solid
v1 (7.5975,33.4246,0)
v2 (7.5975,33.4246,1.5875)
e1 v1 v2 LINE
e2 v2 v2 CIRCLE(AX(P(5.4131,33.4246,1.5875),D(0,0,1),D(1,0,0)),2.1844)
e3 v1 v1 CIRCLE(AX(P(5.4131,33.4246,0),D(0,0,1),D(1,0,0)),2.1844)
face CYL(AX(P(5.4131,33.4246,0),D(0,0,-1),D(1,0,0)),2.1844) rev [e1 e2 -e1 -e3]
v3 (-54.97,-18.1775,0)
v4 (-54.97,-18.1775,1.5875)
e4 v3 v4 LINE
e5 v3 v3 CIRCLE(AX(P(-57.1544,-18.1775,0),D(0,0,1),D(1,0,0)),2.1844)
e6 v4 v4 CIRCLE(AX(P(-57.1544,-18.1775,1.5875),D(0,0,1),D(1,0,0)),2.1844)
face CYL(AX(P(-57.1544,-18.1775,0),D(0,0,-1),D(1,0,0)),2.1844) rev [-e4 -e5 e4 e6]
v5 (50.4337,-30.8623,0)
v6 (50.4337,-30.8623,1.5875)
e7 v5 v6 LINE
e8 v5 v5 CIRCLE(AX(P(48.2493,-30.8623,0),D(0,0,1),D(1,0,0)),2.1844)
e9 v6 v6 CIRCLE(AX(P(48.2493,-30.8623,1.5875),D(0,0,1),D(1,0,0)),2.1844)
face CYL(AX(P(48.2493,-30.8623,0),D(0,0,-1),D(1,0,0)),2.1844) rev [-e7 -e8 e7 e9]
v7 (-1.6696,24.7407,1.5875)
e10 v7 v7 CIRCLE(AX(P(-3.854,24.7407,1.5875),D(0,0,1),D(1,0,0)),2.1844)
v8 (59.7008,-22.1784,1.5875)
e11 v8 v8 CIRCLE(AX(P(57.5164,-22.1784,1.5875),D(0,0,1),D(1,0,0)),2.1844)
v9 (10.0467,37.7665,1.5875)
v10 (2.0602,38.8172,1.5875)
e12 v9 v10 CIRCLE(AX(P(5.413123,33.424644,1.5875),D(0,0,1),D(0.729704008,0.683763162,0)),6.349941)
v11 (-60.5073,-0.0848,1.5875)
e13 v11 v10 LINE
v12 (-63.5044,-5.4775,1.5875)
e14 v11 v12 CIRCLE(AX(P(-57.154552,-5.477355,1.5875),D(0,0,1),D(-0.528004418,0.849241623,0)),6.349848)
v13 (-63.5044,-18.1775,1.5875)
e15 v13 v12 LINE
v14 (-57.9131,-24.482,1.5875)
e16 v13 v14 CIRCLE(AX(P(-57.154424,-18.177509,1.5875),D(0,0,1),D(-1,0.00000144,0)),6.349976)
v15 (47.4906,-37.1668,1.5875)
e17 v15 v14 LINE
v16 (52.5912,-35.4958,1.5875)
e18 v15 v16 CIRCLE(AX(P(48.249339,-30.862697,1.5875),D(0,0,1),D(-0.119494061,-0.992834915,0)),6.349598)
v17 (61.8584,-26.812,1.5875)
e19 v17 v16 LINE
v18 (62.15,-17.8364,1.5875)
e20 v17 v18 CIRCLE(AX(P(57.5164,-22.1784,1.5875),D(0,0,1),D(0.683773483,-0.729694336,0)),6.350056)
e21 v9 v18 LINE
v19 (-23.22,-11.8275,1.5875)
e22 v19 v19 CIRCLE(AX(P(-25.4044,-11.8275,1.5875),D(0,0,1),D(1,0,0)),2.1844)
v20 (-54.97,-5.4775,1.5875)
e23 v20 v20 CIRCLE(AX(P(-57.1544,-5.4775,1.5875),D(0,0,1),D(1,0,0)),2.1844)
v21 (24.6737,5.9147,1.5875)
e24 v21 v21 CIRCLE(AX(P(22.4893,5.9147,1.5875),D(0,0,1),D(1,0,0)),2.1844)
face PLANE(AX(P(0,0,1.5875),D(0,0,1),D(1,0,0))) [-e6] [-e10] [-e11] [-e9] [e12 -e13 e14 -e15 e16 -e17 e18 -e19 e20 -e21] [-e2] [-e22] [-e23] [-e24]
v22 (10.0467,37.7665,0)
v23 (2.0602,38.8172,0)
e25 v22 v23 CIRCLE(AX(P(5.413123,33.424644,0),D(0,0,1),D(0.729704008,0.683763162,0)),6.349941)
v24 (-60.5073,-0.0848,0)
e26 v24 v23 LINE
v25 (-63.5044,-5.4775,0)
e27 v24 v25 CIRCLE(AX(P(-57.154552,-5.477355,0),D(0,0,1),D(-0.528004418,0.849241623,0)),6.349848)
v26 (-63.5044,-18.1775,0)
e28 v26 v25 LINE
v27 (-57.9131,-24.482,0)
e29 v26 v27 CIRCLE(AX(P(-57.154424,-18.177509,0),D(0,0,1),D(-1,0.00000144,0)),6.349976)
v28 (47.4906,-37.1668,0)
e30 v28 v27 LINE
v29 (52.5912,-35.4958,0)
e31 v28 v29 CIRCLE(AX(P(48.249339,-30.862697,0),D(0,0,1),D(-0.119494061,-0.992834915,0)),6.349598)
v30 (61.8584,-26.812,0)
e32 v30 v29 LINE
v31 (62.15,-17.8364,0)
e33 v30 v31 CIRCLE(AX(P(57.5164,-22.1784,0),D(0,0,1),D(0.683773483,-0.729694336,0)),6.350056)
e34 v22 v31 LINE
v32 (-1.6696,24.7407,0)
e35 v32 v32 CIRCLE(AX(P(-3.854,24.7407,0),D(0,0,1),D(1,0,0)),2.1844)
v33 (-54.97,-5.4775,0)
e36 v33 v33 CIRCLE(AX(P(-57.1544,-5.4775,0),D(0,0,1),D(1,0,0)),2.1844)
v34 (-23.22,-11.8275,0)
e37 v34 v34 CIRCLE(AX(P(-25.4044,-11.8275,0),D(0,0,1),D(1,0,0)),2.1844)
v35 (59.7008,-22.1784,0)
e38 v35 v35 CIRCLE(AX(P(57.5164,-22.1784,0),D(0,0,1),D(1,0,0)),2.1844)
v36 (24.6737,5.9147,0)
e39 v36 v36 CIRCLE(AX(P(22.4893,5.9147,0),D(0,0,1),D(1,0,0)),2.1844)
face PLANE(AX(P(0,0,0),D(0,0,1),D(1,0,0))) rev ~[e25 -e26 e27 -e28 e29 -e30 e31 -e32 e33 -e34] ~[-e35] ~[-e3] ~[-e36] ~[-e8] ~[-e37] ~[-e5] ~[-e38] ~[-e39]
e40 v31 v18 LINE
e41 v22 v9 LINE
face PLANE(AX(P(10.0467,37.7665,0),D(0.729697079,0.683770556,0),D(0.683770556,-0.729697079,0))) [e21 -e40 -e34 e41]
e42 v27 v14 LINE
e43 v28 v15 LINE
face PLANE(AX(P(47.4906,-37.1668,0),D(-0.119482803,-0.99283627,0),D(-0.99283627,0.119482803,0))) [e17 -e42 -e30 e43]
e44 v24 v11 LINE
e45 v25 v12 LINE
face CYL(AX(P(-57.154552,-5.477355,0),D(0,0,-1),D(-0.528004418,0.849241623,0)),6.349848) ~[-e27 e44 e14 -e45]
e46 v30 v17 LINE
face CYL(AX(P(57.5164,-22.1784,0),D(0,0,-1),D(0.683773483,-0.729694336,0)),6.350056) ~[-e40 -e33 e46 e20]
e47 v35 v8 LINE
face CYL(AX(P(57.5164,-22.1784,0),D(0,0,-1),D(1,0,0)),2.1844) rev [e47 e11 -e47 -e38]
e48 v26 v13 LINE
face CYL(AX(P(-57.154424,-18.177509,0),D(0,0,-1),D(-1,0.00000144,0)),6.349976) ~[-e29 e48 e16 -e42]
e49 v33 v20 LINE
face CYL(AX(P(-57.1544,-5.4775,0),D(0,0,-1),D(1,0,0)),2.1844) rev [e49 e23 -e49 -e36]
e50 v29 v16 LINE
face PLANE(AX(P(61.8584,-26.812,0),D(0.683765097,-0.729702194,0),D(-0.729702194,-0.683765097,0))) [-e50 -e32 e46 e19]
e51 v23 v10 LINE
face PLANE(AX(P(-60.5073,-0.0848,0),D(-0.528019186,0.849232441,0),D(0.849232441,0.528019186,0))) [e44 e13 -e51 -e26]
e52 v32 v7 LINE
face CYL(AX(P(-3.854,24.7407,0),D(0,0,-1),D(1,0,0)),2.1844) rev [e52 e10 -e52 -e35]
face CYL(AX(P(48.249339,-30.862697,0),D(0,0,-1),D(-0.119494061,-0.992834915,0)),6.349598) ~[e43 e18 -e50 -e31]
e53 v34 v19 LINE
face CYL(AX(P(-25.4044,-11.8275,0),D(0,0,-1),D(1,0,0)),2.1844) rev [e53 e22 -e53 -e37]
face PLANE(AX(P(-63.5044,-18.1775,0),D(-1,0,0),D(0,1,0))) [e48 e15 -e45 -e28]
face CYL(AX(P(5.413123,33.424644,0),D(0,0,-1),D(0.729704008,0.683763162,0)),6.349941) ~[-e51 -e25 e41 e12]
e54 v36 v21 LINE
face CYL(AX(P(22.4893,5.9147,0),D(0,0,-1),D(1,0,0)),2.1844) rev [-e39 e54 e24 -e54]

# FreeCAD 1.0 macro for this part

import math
import FreeCAD as App
import Part
import Sketcher

V = App.Vector
Q = App.Units.Quantity

doc = App.newDocument("Part")
body = doc.addObject("PartDesign::Body", "Body")

# Sketch on XY plane
sketch1 = doc.addObject("Sketcher::SketchObject", "Sketch")
body.addObject(sketch1)
sketch1.AttachmentSupport = (doc.XY_Plane, [""])
sketch1.MapMode = "FlatFace"
sketch1.addGeometry(Part.LineSegment(V(2.1, 38.8, 0), V(-60.5, -0.1, 0)), False)
sketch1.addGeometry(Part.ArcOfCircle(Part.Circle(V(-57.2, -5.5, 0), V(0, 0, 1), 6.4), math.radians(122), math.radians(180)), False)
sketch1.addGeometry(Part.LineSegment(V(-63.5, -5.5, 0), V(-63.5, -18.2, 0)), False)
sketch1.addGeometry(Part.ArcOfCircle(Part.Circle(V(-57.2, -18.2, 0), V(0, 0, 1), 6.3), math.radians(180), math.radians(263)), False)
sketch1.addGeometry(Part.LineSegment(V(-57.9, -24.5, 0), V(47.5, -37.2, 0)), False)
sketch1.addGeometry(Part.ArcOfCircle(Part.Circle(V(48.2, -30.9, 0), V(0, 0, 1), 6.3), math.radians(-97), math.radians(-47)), False)
sketch1.addGeometry(Part.LineSegment(V(52.6, -35.5, 0), V(61.9, -26.8, 0)), False)
sketch1.addGeometry(Part.ArcOfCircle(Part.Circle(V(57.5, -22.2, 0), V(0, 0, 1), 6.4), math.radians(-47), math.radians(43)), False)
sketch1.addGeometry(Part.LineSegment(V(62.1, -17.8, 0), V(10, 37.8, 0)), False)
sketch1.addGeometry(Part.ArcOfCircle(Part.Circle(V(5.4, 33.4, 0), V(0, 0, 1), 6.3), math.radians(43), math.radians(122)), False)
sketch1.addGeometry(Part.Circle(V(-57.2, -18.2, 0), V(0, 0, 1), 2.2), False)
sketch1.addGeometry(Part.Circle(V(-57.2, -5.5, 0), V(0, 0, 1), 2.2), False)
sketch1.addGeometry(Part.Circle(V(-25.4, -11.8, 0), V(0, 0, 1), 2.2), False)
sketch1.addGeometry(Part.Circle(V(48.2, -30.9, 0), V(0, 0, 1), 2.2), False)
sketch1.addGeometry(Part.Circle(V(57.5, -22.2, 0), V(0, 0, 1), 2.2), False)
sketch1.addGeometry(Part.Circle(V(-3.9, 24.7, 0), V(0, 0, 1), 2.2), False)
sketch1.addGeometry(Part.Circle(V(22.5, 5.9, 0), V(0, 0, 1), 2.2), False)
sketch1.addGeometry(Part.Circle(V(5.4, 33.4, 0), V(0, 0, 1), 2.2), False)
sketch1.addConstraint(Sketcher.Constraint("Tangent", 0, 2, 1, 1))
sketch1.addConstraint(Sketcher.Constraint("Tangent", 1, 2, 2, 1))
sketch1.addConstraint(Sketcher.Constraint("Tangent", 2, 2, 3, 1))
sketch1.addConstraint(Sketcher.Constraint("Tangent", 3, 2, 4, 1))
sketch1.addConstraint(Sketcher.Constraint("Tangent", 4, 2, 5, 1))
sketch1.addConstraint(Sketcher.Constraint("Tangent", 5, 2, 6, 1))
sketch1.addConstraint(Sketcher.Constraint("Tangent", 6, 2, 7, 1))
sketch1.addConstraint(Sketcher.Constraint("Tangent", 7, 2, 8, 1))
sketch1.addConstraint(Sketcher.Constraint("Tangent", 8, 2, 9, 1))
sketch1.addConstraint(Sketcher.Constraint("Tangent", 9, 2, 0, 1))
sketch1.addConstraint(Sketcher.Constraint("Vertical", 2))
sketch1.addConstraint(Sketcher.Constraint("Coincident", 10, 3, 3, 3))
sketch1.addConstraint(Sketcher.Constraint("Coincident", 11, 3, 1, 3))
sketch1.addConstraint(Sketcher.Constraint("Coincident", 13, 3, 5, 3))
sketch1.addConstraint(Sketcher.Constraint("Coincident", 14, 3, 7, 3))
sketch1.addConstraint(Sketcher.Constraint("Coincident", 17, 3, 9, 3))
sketch1.addConstraint(Sketcher.Constraint("Equal", 1, 3))
sketch1.addConstraint(Sketcher.Constraint("Equal", 3, 5))
sketch1.addConstraint(Sketcher.Constraint("Equal", 5, 7))
sketch1.addConstraint(Sketcher.Constraint("Equal", 7, 9))
sketch1.addConstraint(Sketcher.Constraint("Equal", 10, 11))
sketch1.addConstraint(Sketcher.Constraint("Equal", 11, 12))
sketch1.addConstraint(Sketcher.Constraint("Equal", 12, 13))
sketch1.addConstraint(Sketcher.Constraint("Equal", 13, 14))
sketch1.addConstraint(Sketcher.Constraint("Equal", 14, 15))
sketch1.addConstraint(Sketcher.Constraint("Equal", 15, 16))
sketch1.addConstraint(Sketcher.Constraint("Equal", 16, 17))
sketch1.addConstraint(Sketcher.Constraint("Perpendicular", 6, 8))
sketch1.addConstraint(Sketcher.Constraint("Radius", 1, Q("0.25 in")))
sketch1.addConstraint(Sketcher.Constraint("Diameter", 10, Q("0.172 in")))
sketch1.addConstraint(Sketcher.Constraint("DistanceY", 2, 2, 2, 1, Q("0.5 in")))
sketch1.addConstraint(Sketcher.Constraint("Distance", 6, Q("0.5 in")))
sketch1.addConstraint(Sketcher.Constraint("DistanceX", 1, 3, 12, 3, Q("1.25 in")))
sketch1.addConstraint(Sketcher.Constraint("DistanceY", 12, 3, 1, 3, Q("0.25 in")))
sketch1.addConstraint(Sketcher.Constraint("Distance", 8, Q("3 in")))
sketch1.addConstraint(Sketcher.Constraint("Angle", 8, Q("133.139 deg")))
sketch1.addConstraint(Sketcher.Constraint("DistanceX", 0, 2, 1, 3, Q("0.132 in")))
sketch1.addConstraint(Sketcher.Constraint("DistanceY", 16, 3, 8, 2, Q("1.254 in")))
sketch1.addConstraint(Sketcher.Constraint("Distance", 0, Q("2.9006 in")))
sketch1.addConstraint(Sketcher.Constraint("DistanceX", -1, 1, 16, 3, Q("0.8854 in")))
sketch1.addConstraint(Sketcher.Constraint("DistanceX", -1, 1, 4, 2, Q("1.8697 in")))
sketch1.addConstraint(Sketcher.Constraint("DistanceY", 6, 2, -1, 1, Q("1.0556 in")))
sketch1.addConstraint(Sketcher.Constraint("DistanceY", 12, 3, 15, 3, Q("1.4397 in")))
sketch1.addConstraint(Sketcher.Constraint("DistanceX", 15, 3, -1, 1, Q("3.854 mm")))
pad1 = doc.addObject("PartDesign::Pad", "Pad")
body.addObject(pad1)
pad1.Profile = sketch1
pad1.Length = Q("0.0625 in")

doc.recompute()
